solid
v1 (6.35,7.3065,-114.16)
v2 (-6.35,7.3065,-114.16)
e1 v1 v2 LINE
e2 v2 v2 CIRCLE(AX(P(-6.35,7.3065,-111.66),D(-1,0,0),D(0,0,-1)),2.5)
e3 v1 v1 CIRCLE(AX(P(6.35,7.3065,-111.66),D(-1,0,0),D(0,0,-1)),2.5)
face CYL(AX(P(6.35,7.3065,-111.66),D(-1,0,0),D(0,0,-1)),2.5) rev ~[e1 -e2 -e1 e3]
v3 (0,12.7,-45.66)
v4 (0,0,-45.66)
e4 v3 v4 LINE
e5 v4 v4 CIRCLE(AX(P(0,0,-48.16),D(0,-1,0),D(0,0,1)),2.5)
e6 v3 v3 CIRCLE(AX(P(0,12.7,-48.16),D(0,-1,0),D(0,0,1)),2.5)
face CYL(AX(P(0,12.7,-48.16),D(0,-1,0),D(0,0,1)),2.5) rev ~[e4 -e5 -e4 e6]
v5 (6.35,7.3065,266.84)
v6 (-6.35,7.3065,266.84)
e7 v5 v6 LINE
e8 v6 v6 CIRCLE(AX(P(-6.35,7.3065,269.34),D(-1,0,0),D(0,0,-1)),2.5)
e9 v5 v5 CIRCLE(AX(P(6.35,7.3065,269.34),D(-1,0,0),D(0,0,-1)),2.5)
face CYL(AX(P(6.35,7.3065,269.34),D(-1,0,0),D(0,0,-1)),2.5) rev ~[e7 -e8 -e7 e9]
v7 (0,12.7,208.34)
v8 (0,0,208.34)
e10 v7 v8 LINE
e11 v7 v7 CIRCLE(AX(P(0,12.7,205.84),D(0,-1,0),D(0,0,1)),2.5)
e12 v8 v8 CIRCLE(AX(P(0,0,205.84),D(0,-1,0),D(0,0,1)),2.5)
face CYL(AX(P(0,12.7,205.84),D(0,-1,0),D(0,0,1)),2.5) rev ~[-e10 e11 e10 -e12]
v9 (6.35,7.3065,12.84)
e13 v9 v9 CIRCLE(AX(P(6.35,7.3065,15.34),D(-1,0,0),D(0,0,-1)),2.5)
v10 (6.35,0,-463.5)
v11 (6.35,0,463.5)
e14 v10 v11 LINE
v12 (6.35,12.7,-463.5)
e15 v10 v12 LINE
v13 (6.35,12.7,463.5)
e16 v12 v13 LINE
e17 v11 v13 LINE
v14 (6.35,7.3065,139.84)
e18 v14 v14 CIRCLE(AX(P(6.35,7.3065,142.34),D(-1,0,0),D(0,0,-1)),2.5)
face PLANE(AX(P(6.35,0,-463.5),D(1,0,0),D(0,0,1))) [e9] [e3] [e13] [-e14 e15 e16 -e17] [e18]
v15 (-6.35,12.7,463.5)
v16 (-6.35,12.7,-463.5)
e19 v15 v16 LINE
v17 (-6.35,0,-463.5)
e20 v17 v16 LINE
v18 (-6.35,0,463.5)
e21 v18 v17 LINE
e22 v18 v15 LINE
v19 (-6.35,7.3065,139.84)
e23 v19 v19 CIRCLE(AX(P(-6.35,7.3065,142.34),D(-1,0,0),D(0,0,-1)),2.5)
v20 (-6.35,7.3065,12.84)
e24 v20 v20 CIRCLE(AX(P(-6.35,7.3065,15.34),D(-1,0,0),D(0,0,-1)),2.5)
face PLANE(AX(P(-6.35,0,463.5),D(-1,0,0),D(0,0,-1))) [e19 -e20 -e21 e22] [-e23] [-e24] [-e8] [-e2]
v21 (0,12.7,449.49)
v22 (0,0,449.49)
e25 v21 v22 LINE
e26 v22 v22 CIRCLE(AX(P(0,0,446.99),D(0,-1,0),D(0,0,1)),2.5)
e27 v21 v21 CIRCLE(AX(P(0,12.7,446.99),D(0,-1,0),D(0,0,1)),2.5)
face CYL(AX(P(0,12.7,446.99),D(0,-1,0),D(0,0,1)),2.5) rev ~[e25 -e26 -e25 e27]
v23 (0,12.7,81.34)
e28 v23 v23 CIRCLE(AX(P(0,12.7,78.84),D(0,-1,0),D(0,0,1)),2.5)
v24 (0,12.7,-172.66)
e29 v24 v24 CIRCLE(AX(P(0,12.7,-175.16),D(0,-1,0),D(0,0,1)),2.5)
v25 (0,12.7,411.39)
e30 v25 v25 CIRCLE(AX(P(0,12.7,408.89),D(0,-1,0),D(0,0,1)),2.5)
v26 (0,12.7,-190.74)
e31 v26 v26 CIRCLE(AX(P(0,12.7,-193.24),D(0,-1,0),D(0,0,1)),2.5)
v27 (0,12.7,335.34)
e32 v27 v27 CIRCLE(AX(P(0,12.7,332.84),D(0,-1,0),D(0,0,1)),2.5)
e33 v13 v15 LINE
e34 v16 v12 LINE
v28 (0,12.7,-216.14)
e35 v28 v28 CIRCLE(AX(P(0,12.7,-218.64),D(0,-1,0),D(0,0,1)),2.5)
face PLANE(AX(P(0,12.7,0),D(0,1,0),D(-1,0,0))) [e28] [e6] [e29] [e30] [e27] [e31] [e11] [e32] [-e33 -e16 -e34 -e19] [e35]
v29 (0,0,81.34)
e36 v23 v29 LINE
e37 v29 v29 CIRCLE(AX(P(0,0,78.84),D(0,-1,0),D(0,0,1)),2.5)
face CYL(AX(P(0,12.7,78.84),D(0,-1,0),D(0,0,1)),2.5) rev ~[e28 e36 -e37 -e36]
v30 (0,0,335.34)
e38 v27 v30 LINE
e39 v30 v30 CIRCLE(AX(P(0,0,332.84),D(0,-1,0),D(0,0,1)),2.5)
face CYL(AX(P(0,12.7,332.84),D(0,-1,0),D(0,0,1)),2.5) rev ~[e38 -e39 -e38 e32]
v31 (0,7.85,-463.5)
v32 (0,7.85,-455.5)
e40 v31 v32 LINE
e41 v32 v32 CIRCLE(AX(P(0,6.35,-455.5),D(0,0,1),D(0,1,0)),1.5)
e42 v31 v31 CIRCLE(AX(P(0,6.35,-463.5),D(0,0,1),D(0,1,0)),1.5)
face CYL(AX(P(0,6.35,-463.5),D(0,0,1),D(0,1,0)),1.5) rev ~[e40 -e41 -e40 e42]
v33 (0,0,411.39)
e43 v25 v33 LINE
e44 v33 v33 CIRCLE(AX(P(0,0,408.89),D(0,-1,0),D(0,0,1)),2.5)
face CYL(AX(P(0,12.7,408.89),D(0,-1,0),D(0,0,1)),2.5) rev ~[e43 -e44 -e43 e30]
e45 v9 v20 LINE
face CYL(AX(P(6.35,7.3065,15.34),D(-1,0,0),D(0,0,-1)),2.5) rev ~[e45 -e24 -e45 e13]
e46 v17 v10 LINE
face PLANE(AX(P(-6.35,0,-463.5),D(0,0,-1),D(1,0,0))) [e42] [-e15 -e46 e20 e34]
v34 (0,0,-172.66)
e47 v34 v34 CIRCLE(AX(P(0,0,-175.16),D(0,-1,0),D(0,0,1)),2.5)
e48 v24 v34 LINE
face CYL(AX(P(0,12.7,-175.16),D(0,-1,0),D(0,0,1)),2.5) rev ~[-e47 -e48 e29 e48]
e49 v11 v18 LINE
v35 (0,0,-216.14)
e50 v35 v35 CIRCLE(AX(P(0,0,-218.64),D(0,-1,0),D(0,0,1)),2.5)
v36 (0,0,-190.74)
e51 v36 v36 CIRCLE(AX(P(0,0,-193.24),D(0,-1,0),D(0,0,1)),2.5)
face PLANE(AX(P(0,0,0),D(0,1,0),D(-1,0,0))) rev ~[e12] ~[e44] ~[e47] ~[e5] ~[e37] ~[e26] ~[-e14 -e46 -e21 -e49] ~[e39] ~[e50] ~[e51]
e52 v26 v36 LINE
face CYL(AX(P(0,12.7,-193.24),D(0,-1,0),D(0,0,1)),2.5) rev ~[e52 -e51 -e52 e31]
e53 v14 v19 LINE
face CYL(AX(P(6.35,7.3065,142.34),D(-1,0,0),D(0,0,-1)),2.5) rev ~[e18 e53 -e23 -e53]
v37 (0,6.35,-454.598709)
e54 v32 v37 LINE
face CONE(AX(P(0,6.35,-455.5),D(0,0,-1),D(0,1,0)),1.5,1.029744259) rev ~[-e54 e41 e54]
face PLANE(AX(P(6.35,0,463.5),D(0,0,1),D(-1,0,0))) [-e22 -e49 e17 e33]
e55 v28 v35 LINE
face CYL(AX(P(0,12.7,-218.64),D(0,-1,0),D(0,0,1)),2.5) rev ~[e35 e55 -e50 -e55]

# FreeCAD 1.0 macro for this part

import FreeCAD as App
import Part
import Sketcher

V = App.Vector


def add_polygon(sketch, points):
    """Adds a closed chain of lines whose ends are joined by coincident constraints."""
    first, n = sketch.GeometryCount, len(points)
    for a, b in zip(points, points[1:] + points[:1]):
        sketch.addGeometry(Part.LineSegment(App.Vector(*a, 0), App.Vector(*b, 0)), False)
    for i in range(n):
        sketch.addConstraint(Sketcher.Constraint("Coincident", first + i, 2, first + (i + 1) % n, 1))

doc = App.newDocument("Part")
body = doc.addObject("PartDesign::Body", "Body")

# Sketch on XZ plane
sketch1 = body.newObject("Sketcher::SketchObject", "Sketch")
sketch1.AttachmentSupport = (doc.getObject("XZ_Plane"), [""])
sketch1.MapMode = "FlatFace"
add_polygon(sketch1, [(6.35, -463.5), (-6.35, -463.5), (-6.35, 463.5), (6.35, 463.5)])  # lines 0-3
sketch1.addConstraint(Sketcher.Constraint("Horizontal", 0))
sketch1.addConstraint(Sketcher.Constraint("Vertical", 1))
sketch1.addConstraint(Sketcher.Constraint("Horizontal", 2))
sketch1.addConstraint(Sketcher.Constraint("Vertical", 3))
sketch1.addConstraint(Sketcher.Constraint("Symmetric", 0, 2, 2, 2, -1, 1))
sketch1.addConstraint(Sketcher.Constraint("DistanceY", 1, 1, 1, 2, 927.0))
sketch1.addConstraint(Sketcher.Constraint("DistanceX", 0, 2, 0, 1, 12.7))
pad1 = body.newObject("PartDesign::Pad", "Pad")
pad1.Profile = sketch1
pad1.Length = 12.7
pad1.Reversed = True

# Sketch on XZ plane
sketch2 = body.newObject("Sketcher::SketchObject", "Sketch001")
sketch2.AttachmentSupport = (doc.getObject("XZ_Plane"), [""])
sketch2.MapMode = "FlatFace"
sketch2.AttachmentOffset = App.Placement(V(0, 0, -12.7), App.Rotation())
sketch2.addGeometry(Part.Circle(V(0, 446.99, 0), V(0, 0, 1), 2.5), False)
sketch2.addConstraint(Sketcher.Constraint("PointOnObject", 0, 3, -2))
sketch2.addConstraint(Sketcher.Constraint("Diameter", 0, 5.0))
sketch2.addConstraint(Sketcher.Constraint("DistanceY", -1, 1, 0, 3, 446.99))
doc.recompute()
hole = body.newObject("PartDesign::Hole", "Hole")
hole.Profile = sketch2
hole.ThreadType = "None"
hole.Diameter = 5
hole.DepthType = "ThroughAll"
hole.Reversed = True

# Sketch on XZ plane
sketch3 = body.newObject("Sketcher::SketchObject", "Sketch002")
sketch3.AttachmentSupport = (doc.getObject("XZ_Plane"), [""])
sketch3.MapMode = "FlatFace"
sketch3.AttachmentOffset = App.Placement(V(0, 0, -12.7), App.Rotation())
sketch3.addGeometry(Part.Circle(V(0, 408.89, 0), V(0, 0, 1), 2.5), False)
sketch3.addConstraint(Sketcher.Constraint("PointOnObject", 0, 3, -2))
sketch3.addConstraint(Sketcher.Constraint("Diameter", 0, 5.0))
sketch3.addConstraint(Sketcher.Constraint("DistanceY", -1, 1, 0, 3, 408.89))
doc.recompute()
hole2 = body.newObject("PartDesign::Hole", "Hole001")
hole2.Profile = sketch3
hole2.ThreadType = "None"
hole2.Diameter = 5
hole2.DepthType = "ThroughAll"
hole2.Reversed = True

# Sketch on XZ plane
sketch4 = body.newObject("Sketcher::SketchObject", "Sketch003")
sketch4.AttachmentSupport = (doc.getObject("XZ_Plane"), [""])
sketch4.MapMode = "FlatFace"
sketch4.AttachmentOffset = App.Placement(V(0, 0, -12.7), App.Rotation())
sketch4.addGeometry(Part.Circle(V(0, 332.84, 0), V(0, 0, 1), 2.5), False)
sketch4.addConstraint(Sketcher.Constraint("PointOnObject", 0, 3, -2))
sketch4.addConstraint(Sketcher.Constraint("Diameter", 0, 5.0))
sketch4.addConstraint(Sketcher.Constraint("DistanceY", -1, 1, 0, 3, 332.84))
doc.recompute()
hole3 = body.newObject("PartDesign::Hole", "Hole002")
hole3.Profile = sketch4
hole3.ThreadType = "None"
hole3.Diameter = 5
hole3.DepthType = "ThroughAll"
hole3.Reversed = True

# Sketch on XZ plane
sketch5 = body.newObject("Sketcher::SketchObject", "Sketch004")
sketch5.AttachmentSupport = (doc.getObject("XZ_Plane"), [""])
sketch5.MapMode = "FlatFace"
sketch5.AttachmentOffset = App.Placement(V(0, 0, -12.7), App.Rotation())
sketch5.addGeometry(Part.Circle(V(0, 205.84, 0), V(0, 0, 1), 2.5), False)
sketch5.addConstraint(Sketcher.Constraint("PointOnObject", 0, 3, -2))
sketch5.addConstraint(Sketcher.Constraint("Diameter", 0, 5.0))
sketch5.addConstraint(Sketcher.Constraint("DistanceY", -1, 1, 0, 3, 205.84))
doc.recompute()
hole4 = body.newObject("PartDesign::Hole", "Hole003")
hole4.Profile = sketch5
hole4.ThreadType = "None"
hole4.Diameter = 5
hole4.DepthType = "ThroughAll"
hole4.Reversed = True

# Sketch on XZ plane
sketch6 = body.newObject("Sketcher::SketchObject", "Sketch005")
sketch6.AttachmentSupport = (doc.getObject("XZ_Plane"), [""])
sketch6.MapMode = "FlatFace"
sketch6.AttachmentOffset = App.Placement(V(0, 0, -12.7), App.Rotation())
sketch6.addGeometry(Part.Circle(V(0, 78.84, 0), V(0, 0, 1), 2.5), False)
sketch6.addConstraint(Sketcher.Constraint("PointOnObject", 0, 3, -2))
sketch6.addConstraint(Sketcher.Constraint("Diameter", 0, 5.0))
sketch6.addConstraint(Sketcher.Constraint("DistanceY", -1, 1, 0, 3, 78.84))
doc.recompute()
hole5 = body.newObject("PartDesign::Hole", "Hole004")
hole5.Profile = sketch6
hole5.ThreadType = "None"
hole5.Diameter = 5
hole5.DepthType = "ThroughAll"
hole5.Reversed = True

# Sketch on XZ plane
sketch7 = body.newObject("Sketcher::SketchObject", "Sketch006")
sketch7.AttachmentSupport = (doc.getObject("XZ_Plane"), [""])
sketch7.MapMode = "FlatFace"
sketch7.AttachmentOffset = App.Placement(V(0, 0, -12.7), App.Rotation())
sketch7.addGeometry(Part.Circle(V(0, -48.16, 0), V(0, 0, 1), 2.5), False)
sketch7.addConstraint(Sketcher.Constraint("PointOnObject", 0, 3, -2))
sketch7.addConstraint(Sketcher.Constraint("Diameter", 0, 5.0))
sketch7.addConstraint(Sketcher.Constraint("DistanceY", 0, 3, -1, 1, 48.16))
doc.recompute()
hole6 = body.newObject("PartDesign::Hole", "Hole005")
hole6.Profile = sketch7
hole6.ThreadType = "None"
hole6.Diameter = 5
hole6.DepthType = "ThroughAll"
hole6.Reversed = True

# Sketch on XZ plane
sketch8 = body.newObject("Sketcher::SketchObject", "Sketch007")
sketch8.AttachmentSupport = (doc.getObject("XZ_Plane"), [""])
sketch8.MapMode = "FlatFace"
sketch8.AttachmentOffset = App.Placement(V(0, 0, -12.7), App.Rotation())
sketch8.addGeometry(Part.Circle(V(0, -175.16, 0), V(0, 0, 1), 2.5), False)
sketch8.addConstraint(Sketcher.Constraint("PointOnObject", 0, 3, -2))
sketch8.addConstraint(Sketcher.Constraint("Diameter", 0, 5.0))
sketch8.addConstraint(Sketcher.Constraint("DistanceY", 0, 3, -1, 1, 175.16))
doc.recompute()
hole7 = body.newObject("PartDesign::Hole", "Hole006")
hole7.Profile = sketch8
hole7.ThreadType = "None"
hole7.Diameter = 5
hole7.DepthType = "ThroughAll"
hole7.Reversed = True

# Sketch on XZ plane
sketch9 = body.newObject("Sketcher::SketchObject", "Sketch008")
sketch9.AttachmentSupport = (doc.getObject("XZ_Plane"), [""])
sketch9.MapMode = "FlatFace"
sketch9.AttachmentOffset = App.Placement(V(0, 0, -12.7), App.Rotation())
sketch9.addGeometry(Part.Circle(V(0, -193.24, 0), V(0, 0, 1), 2.5), False)
sketch9.addConstraint(Sketcher.Constraint("PointOnObject", 0, 3, -2))
sketch9.addConstraint(Sketcher.Constraint("Diameter", 0, 5.0))
sketch9.addConstraint(Sketcher.Constraint("DistanceY", 0, 3, -1, 1, 193.24))
doc.recompute()
hole8 = body.newObject("PartDesign::Hole", "Hole007")
hole8.Profile = sketch9
hole8.ThreadType = "None"
hole8.Diameter = 5
hole8.DepthType = "ThroughAll"
hole8.Reversed = True

# Sketch on XZ plane
sketch10 = body.newObject("Sketcher::SketchObject", "Sketch009")
sketch10.AttachmentSupport = (doc.getObject("XZ_Plane"), [""])
sketch10.MapMode = "FlatFace"
sketch10.AttachmentOffset = App.Placement(V(0, 0, -12.7), App.Rotation())
sketch10.addGeometry(Part.Circle(V(0, -218.64, 0), V(0, 0, 1), 2.5), False)
sketch10.addConstraint(Sketcher.Constraint("PointOnObject", 0, 3, -2))
sketch10.addConstraint(Sketcher.Constraint("Diameter", 0, 5.0))
sketch10.addConstraint(Sketcher.Constraint("DistanceY", 0, 3, -1, 1, 218.64))
doc.recompute()
hole9 = body.newObject("PartDesign::Hole", "Hole008")
hole9.Profile = sketch10
hole9.ThreadType = "None"
hole9.Diameter = 5
hole9.DepthType = "ThroughAll"
hole9.Reversed = True

# Sketch on XY plane
sketch11 = body.newObject("Sketcher::SketchObject", "Sketch010")
sketch11.AttachmentSupport = (doc.getObject("XY_Plane"), [""])
sketch11.MapMode = "FlatFace"
sketch11.AttachmentOffset = App.Placement(V(0, 0, -463.5), App.Rotation())
sketch11.addGeometry(Part.Circle(V(0, 6.35, 0), V(0, 0, 1), 1.5), False)
sketch11.addConstraint(Sketcher.Constraint("PointOnObject", 0, 3, -2))
sketch11.addConstraint(Sketcher.Constraint("Diameter", 0, 3.0))
sketch11.addConstraint(Sketcher.Constraint("DistanceY", -1, 1, 0, 3, 6.35))
doc.recompute()
hole10 = body.newObject("PartDesign::Hole", "Hole009")
hole10.Profile = sketch11
hole10.ThreadType = "None"
hole10.Diameter = 3
hole10.DepthType = "Dimension"
hole10.Depth = 8
hole10.DrillPoint = "Angled"
hole10.DrillPointAngle = 118
hole10.Reversed = True

# Sketch on YZ plane
sketch12 = body.newObject("Sketcher::SketchObject", "Sketch011")
sketch12.AttachmentSupport = (doc.getObject("YZ_Plane"), [""])
sketch12.MapMode = "FlatFace"
sketch12.AttachmentOffset = App.Placement(V(0, 0, 6.35), App.Rotation())
sketch12.addGeometry(Part.Circle(V(7.3065, 269.34, 0), V(0, 0, 1), 2.5), False)
sketch12.addConstraint(Sketcher.Constraint("Diameter", 0, 5.0))
sketch12.addConstraint(Sketcher.Constraint("DistanceY", -1, 1, 0, 3, 269.34))
sketch12.addConstraint(Sketcher.Constraint("DistanceX", -1, 1, 0, 3, 7.3065))
doc.recompute()
hole11 = body.newObject("PartDesign::Hole", "Hole010")
hole11.Profile = sketch12
hole11.ThreadType = "None"
hole11.Diameter = 5
hole11.DepthType = "ThroughAll"

# Sketch on YZ plane
sketch13 = body.newObject("Sketcher::SketchObject", "Sketch012")
sketch13.AttachmentSupport = (doc.getObject("YZ_Plane"), [""])
sketch13.MapMode = "FlatFace"
sketch13.AttachmentOffset = App.Placement(V(0, 0, 6.35), App.Rotation())
sketch13.addGeometry(Part.Circle(V(7.3065, 142.34, 0), V(0, 0, 1), 2.5), False)
sketch13.addConstraint(Sketcher.Constraint("Diameter", 0, 5.0))
sketch13.addConstraint(Sketcher.Constraint("DistanceY", -1, 1, 0, 3, 142.34))
sketch13.addConstraint(Sketcher.Constraint("DistanceX", -1, 1, 0, 3, 7.3065))
doc.recompute()
hole12 = body.newObject("PartDesign::Hole", "Hole011")
hole12.Profile = sketch13
hole12.ThreadType = "None"
hole12.Diameter = 5
hole12.DepthType = "ThroughAll"

# Sketch on YZ plane
sketch14 = body.newObject("Sketcher::SketchObject", "Sketch013")
sketch14.AttachmentSupport = (doc.getObject("YZ_Plane"), [""])
sketch14.MapMode = "FlatFace"
sketch14.AttachmentOffset = App.Placement(V(0, 0, 6.35), App.Rotation())
sketch14.addGeometry(Part.Circle(V(7.3065, 15.34, 0), V(0, 0, 1), 2.5), False)
sketch14.addConstraint(Sketcher.Constraint("Diameter", 0, 5.0))
sketch14.addConstraint(Sketcher.Constraint("DistanceY", -1, 1, 0, 3, 15.34))
sketch14.addConstraint(Sketcher.Constraint("DistanceX", -1, 1, 0, 3, 7.3065))
doc.recompute()
hole13 = body.newObject("PartDesign::Hole", "Hole012")
hole13.Profile = sketch14
hole13.ThreadType = "None"
hole13.Diameter = 5
hole13.DepthType = "ThroughAll"

# Sketch on YZ plane
sketch15 = body.newObject("Sketcher::SketchObject", "Sketch014")
sketch15.AttachmentSupport = (doc.getObject("YZ_Plane"), [""])
sketch15.MapMode = "FlatFace"
sketch15.AttachmentOffset = App.Placement(V(0, 0, 6.35), App.Rotation())
sketch15.addGeometry(Part.Circle(V(7.3065, -111.66, 0), V(0, 0, 1), 2.5), False)
sketch15.addConstraint(Sketcher.Constraint("Diameter", 0, 5.0))
sketch15.addConstraint(Sketcher.Constraint("DistanceY", 0, 3, -1, 1, 111.66))
sketch15.addConstraint(Sketcher.Constraint("DistanceX", -1, 1, 0, 3, 7.3065))
doc.recompute()
hole14 = body.newObject("PartDesign::Hole", "Hole013")
hole14.Profile = sketch15
hole14.ThreadType = "None"
hole14.Diameter = 5
hole14.DepthType = "ThroughAll"

doc.recompute()
